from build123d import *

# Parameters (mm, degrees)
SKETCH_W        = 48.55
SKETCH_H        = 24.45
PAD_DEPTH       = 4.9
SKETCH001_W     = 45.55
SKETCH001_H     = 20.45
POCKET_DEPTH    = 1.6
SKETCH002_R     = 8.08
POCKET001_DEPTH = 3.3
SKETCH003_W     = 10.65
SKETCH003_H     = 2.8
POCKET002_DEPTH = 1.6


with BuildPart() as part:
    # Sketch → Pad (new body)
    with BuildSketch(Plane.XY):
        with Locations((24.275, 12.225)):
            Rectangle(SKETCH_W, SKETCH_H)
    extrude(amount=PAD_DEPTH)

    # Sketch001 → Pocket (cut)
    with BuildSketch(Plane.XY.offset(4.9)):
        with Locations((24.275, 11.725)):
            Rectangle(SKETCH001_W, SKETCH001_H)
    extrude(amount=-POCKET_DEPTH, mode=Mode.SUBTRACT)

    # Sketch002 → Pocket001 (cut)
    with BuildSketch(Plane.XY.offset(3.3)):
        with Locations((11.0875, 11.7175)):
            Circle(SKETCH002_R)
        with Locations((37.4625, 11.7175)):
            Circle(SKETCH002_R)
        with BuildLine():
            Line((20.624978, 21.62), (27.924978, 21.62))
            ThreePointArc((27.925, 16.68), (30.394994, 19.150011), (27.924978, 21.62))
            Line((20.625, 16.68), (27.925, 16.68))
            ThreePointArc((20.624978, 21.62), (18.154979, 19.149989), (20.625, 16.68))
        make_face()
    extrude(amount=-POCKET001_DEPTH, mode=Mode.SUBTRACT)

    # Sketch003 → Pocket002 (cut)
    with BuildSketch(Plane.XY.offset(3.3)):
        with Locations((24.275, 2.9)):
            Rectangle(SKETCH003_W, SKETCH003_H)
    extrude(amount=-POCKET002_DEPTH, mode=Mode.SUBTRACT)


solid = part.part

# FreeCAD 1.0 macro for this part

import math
import FreeCAD as App
import Part
import Sketcher

V = App.Vector


def add_polygon(sketch, points):
    """Adds a closed chain of lines whose ends are joined by coincident constraints."""
    first, n = sketch.GeometryCount, len(points)
    for a, b in zip(points, points[1:] + points[:1]):
        sketch.addGeometry(Part.LineSegment(App.Vector(*a, 0), App.Vector(*b, 0)), False)
    for i in range(n):
        sketch.addConstraint(Sketcher.Constraint("Coincident", first + i, 2, first + (i + 1) % n, 1))

doc = App.newDocument("Part")
body = doc.addObject("PartDesign::Body", "Body")

# Sketch on XY plane
sketch1 = body.newObject("Sketcher::SketchObject", "Sketch")
sketch1.AttachmentSupport = (doc.getObject("XY_Plane"), [""])
sketch1.MapMode = "FlatFace"
add_polygon(sketch1, [(0, 24), (0, 0), (49, 0), (49, 24)])  # lines 0-3
sketch1.addConstraint(Sketcher.Constraint("Vertical", 0))
sketch1.addConstraint(Sketcher.Constraint("Horizontal", 1))
sketch1.addConstraint(Sketcher.Constraint("Vertical", 2))
sketch1.addConstraint(Sketcher.Constraint("Horizontal", 3))
sketch1.addConstraint(Sketcher.Constraint("Coincident", 0, 2, -1, 1))
sketch1.addConstraint(Sketcher.Constraint("DistanceX", 1, 1, 1, 2, 48.55))
sketch1.addConstraint(Sketcher.Constraint("DistanceY", 0, 2, 0, 1, 24.45))
pad1 = body.newObject("PartDesign::Pad", "Pad")
pad1.Profile = sketch1
pad1.Length = 4.9

# Sketch on XY plane
sketch2 = body.newObject("Sketcher::SketchObject", "Sketch001")
sketch2.AttachmentSupport = (doc.getObject("XY_Plane"), [""])
sketch2.MapMode = "FlatFace"
sketch2.AttachmentOffset = App.Placement(V(0, 0, 4.9), App.Rotation())
add_polygon(sketch2, [(2, 22), (2, 2), (47, 2), (47, 22)])  # lines 0-3
sketch2.addConstraint(Sketcher.Constraint("Vertical", 0))
sketch2.addConstraint(Sketcher.Constraint("Horizontal", 1))
sketch2.addConstraint(Sketcher.Constraint("Vertical", 2))
sketch2.addConstraint(Sketcher.Constraint("Horizontal", 3))
sketch2.addConstraint(Sketcher.Constraint("DistanceX", 1, 1, 1, 2, 45.55))
sketch2.addConstraint(Sketcher.Constraint("DistanceY", 0, 2, 0, 1, 20.45))
sketch2.addConstraint(Sketcher.Constraint("DistanceX", -1, 1, 0, 2, 1.5))
sketch2.addConstraint(Sketcher.Constraint("DistanceY", -1, 1, 0, 2, 1.5))
pocket1 = body.newObject("PartDesign::Pocket", "Pocket")
pocket1.Profile = sketch2
pocket1.Length = 1.6

# Sketch on XY plane
sketch3 = body.newObject("Sketcher::SketchObject", "Sketch002")
sketch3.AttachmentSupport = (doc.getObject("XY_Plane"), [""])
sketch3.MapMode = "FlatFace"
sketch3.AttachmentOffset = App.Placement(V(0, 0, 3.3), App.Rotation())
sketch3.addGeometry(Part.Circle(V(11.1, 11.7, 0), V(0, 0, 1), 8.1), False)
sketch3.addGeometry(Part.Circle(V(37.5, 11.7, 0), V(0, 0, 1), 8.1), False)
sketch3.addGeometry(Part.LineSegment(V(27.9, 21.6, 0), V(20.6, 21.6, 0)), False)
sketch3.addGeometry(Part.ArcOfCircle(Part.Circle(V(20.6, 19.1, 0), V(0, 0, 1), 2.5), math.radians(90), math.radians(270)), False)
sketch3.addGeometry(Part.LineSegment(V(20.6, 16.7, 0), V(27.9, 16.7, 0)), False)
sketch3.addGeometry(Part.ArcOfCircle(Part.Circle(V(27.9, 19.1, 0), V(0, 0, 1), 2.5), math.radians(-90), math.radians(90)), False)
sketch3.addConstraint(Sketcher.Constraint("Tangent", 2, 2, 3, 1))
sketch3.addConstraint(Sketcher.Constraint("Coincident", 3, 2, 4, 1))
sketch3.addConstraint(Sketcher.Constraint("Coincident", 4, 2, 5, 1))
sketch3.addConstraint(Sketcher.Constraint("Coincident", 5, 2, 2, 1))
sketch3.addConstraint(Sketcher.Constraint("Horizontal", 2))
sketch3.addConstraint(Sketcher.Constraint("Horizontal", 4))
sketch3.addConstraint(Sketcher.Constraint("Equal", 0, 1))
sketch3.addConstraint(Sketcher.Constraint("Horizontal", 0, 3, 1, 3))
sketch3.addConstraint(Sketcher.Constraint("Equal", 2, 4))
sketch3.addConstraint(Sketcher.Constraint("Diameter", 0, 16.16))
sketch3.addConstraint(Sketcher.Constraint("Radius", 3, 2.47))
sketch3.addConstraint(Sketcher.Constraint("DistanceX", 2, 2, 2, 1, 7.3))
sketch3.addConstraint(Sketcher.Constraint("DistanceY", -1, 1, 3, 3, 19.15))
sketch3.addConstraint(Sketcher.Constraint("DistanceX", -1, 1, 3, 2, 20.625))
sketch3.addConstraint(Sketcher.Constraint("DistanceX", 0, 3, 1, 3, 26.375))
sketch3.addConstraint(Sketcher.Constraint("DistanceX", -1, 1, 0, 3, 11.0875))
sketch3.addConstraint(Sketcher.Constraint("DistanceY", -1, 1, 0, 3, 11.7175))
sketch3.addConstraint(Sketcher.Constraint("DistanceX", -1, 1, 3, 3, 20.624979))
sketch3.addConstraint(Sketcher.Constraint("DistanceX", -1, 1, 5, 3, 27.924994))
pocket2 = body.newObject("PartDesign::Pocket", "Pocket001")
pocket2.Profile = sketch3
pocket2.Length = 3.3

# Sketch on XY plane
sketch4 = body.newObject("Sketcher::SketchObject", "Sketch003")
sketch4.AttachmentSupport = (doc.getObject("XY_Plane"), [""])
sketch4.MapMode = "FlatFace"
sketch4.AttachmentOffset = App.Placement(V(0, 0, 3.3), App.Rotation())
add_polygon(sketch4, [(18.9, 4.3), (18.9, 1.5), (29.6, 1.5), (29.6, 4.3)])  # lines 0-3
sketch4.addConstraint(Sketcher.Constraint("Vertical", 0))
sketch4.addConstraint(Sketcher.Constraint("Horizontal", 1))
sketch4.addConstraint(Sketcher.Constraint("Vertical", 2))
sketch4.addConstraint(Sketcher.Constraint("Horizontal", 3))
sketch4.addConstraint(Sketcher.Constraint("DistanceY", 0, 2, 0, 1, 2.8))
sketch4.addConstraint(Sketcher.Constraint("DistanceX", 1, 1, 1, 2, 10.65))
sketch4.addConstraint(Sketcher.Constraint("DistanceY", -1, 1, 0, 2, 1.5))
sketch4.addConstraint(Sketcher.Constraint("DistanceX", -1, 1, 1, 2, 29.6))
pocket3 = body.newObject("PartDesign::Pocket", "Pocket002")
pocket3.Profile = sketch4
pocket3.Length = 1.6

doc.recompute()
